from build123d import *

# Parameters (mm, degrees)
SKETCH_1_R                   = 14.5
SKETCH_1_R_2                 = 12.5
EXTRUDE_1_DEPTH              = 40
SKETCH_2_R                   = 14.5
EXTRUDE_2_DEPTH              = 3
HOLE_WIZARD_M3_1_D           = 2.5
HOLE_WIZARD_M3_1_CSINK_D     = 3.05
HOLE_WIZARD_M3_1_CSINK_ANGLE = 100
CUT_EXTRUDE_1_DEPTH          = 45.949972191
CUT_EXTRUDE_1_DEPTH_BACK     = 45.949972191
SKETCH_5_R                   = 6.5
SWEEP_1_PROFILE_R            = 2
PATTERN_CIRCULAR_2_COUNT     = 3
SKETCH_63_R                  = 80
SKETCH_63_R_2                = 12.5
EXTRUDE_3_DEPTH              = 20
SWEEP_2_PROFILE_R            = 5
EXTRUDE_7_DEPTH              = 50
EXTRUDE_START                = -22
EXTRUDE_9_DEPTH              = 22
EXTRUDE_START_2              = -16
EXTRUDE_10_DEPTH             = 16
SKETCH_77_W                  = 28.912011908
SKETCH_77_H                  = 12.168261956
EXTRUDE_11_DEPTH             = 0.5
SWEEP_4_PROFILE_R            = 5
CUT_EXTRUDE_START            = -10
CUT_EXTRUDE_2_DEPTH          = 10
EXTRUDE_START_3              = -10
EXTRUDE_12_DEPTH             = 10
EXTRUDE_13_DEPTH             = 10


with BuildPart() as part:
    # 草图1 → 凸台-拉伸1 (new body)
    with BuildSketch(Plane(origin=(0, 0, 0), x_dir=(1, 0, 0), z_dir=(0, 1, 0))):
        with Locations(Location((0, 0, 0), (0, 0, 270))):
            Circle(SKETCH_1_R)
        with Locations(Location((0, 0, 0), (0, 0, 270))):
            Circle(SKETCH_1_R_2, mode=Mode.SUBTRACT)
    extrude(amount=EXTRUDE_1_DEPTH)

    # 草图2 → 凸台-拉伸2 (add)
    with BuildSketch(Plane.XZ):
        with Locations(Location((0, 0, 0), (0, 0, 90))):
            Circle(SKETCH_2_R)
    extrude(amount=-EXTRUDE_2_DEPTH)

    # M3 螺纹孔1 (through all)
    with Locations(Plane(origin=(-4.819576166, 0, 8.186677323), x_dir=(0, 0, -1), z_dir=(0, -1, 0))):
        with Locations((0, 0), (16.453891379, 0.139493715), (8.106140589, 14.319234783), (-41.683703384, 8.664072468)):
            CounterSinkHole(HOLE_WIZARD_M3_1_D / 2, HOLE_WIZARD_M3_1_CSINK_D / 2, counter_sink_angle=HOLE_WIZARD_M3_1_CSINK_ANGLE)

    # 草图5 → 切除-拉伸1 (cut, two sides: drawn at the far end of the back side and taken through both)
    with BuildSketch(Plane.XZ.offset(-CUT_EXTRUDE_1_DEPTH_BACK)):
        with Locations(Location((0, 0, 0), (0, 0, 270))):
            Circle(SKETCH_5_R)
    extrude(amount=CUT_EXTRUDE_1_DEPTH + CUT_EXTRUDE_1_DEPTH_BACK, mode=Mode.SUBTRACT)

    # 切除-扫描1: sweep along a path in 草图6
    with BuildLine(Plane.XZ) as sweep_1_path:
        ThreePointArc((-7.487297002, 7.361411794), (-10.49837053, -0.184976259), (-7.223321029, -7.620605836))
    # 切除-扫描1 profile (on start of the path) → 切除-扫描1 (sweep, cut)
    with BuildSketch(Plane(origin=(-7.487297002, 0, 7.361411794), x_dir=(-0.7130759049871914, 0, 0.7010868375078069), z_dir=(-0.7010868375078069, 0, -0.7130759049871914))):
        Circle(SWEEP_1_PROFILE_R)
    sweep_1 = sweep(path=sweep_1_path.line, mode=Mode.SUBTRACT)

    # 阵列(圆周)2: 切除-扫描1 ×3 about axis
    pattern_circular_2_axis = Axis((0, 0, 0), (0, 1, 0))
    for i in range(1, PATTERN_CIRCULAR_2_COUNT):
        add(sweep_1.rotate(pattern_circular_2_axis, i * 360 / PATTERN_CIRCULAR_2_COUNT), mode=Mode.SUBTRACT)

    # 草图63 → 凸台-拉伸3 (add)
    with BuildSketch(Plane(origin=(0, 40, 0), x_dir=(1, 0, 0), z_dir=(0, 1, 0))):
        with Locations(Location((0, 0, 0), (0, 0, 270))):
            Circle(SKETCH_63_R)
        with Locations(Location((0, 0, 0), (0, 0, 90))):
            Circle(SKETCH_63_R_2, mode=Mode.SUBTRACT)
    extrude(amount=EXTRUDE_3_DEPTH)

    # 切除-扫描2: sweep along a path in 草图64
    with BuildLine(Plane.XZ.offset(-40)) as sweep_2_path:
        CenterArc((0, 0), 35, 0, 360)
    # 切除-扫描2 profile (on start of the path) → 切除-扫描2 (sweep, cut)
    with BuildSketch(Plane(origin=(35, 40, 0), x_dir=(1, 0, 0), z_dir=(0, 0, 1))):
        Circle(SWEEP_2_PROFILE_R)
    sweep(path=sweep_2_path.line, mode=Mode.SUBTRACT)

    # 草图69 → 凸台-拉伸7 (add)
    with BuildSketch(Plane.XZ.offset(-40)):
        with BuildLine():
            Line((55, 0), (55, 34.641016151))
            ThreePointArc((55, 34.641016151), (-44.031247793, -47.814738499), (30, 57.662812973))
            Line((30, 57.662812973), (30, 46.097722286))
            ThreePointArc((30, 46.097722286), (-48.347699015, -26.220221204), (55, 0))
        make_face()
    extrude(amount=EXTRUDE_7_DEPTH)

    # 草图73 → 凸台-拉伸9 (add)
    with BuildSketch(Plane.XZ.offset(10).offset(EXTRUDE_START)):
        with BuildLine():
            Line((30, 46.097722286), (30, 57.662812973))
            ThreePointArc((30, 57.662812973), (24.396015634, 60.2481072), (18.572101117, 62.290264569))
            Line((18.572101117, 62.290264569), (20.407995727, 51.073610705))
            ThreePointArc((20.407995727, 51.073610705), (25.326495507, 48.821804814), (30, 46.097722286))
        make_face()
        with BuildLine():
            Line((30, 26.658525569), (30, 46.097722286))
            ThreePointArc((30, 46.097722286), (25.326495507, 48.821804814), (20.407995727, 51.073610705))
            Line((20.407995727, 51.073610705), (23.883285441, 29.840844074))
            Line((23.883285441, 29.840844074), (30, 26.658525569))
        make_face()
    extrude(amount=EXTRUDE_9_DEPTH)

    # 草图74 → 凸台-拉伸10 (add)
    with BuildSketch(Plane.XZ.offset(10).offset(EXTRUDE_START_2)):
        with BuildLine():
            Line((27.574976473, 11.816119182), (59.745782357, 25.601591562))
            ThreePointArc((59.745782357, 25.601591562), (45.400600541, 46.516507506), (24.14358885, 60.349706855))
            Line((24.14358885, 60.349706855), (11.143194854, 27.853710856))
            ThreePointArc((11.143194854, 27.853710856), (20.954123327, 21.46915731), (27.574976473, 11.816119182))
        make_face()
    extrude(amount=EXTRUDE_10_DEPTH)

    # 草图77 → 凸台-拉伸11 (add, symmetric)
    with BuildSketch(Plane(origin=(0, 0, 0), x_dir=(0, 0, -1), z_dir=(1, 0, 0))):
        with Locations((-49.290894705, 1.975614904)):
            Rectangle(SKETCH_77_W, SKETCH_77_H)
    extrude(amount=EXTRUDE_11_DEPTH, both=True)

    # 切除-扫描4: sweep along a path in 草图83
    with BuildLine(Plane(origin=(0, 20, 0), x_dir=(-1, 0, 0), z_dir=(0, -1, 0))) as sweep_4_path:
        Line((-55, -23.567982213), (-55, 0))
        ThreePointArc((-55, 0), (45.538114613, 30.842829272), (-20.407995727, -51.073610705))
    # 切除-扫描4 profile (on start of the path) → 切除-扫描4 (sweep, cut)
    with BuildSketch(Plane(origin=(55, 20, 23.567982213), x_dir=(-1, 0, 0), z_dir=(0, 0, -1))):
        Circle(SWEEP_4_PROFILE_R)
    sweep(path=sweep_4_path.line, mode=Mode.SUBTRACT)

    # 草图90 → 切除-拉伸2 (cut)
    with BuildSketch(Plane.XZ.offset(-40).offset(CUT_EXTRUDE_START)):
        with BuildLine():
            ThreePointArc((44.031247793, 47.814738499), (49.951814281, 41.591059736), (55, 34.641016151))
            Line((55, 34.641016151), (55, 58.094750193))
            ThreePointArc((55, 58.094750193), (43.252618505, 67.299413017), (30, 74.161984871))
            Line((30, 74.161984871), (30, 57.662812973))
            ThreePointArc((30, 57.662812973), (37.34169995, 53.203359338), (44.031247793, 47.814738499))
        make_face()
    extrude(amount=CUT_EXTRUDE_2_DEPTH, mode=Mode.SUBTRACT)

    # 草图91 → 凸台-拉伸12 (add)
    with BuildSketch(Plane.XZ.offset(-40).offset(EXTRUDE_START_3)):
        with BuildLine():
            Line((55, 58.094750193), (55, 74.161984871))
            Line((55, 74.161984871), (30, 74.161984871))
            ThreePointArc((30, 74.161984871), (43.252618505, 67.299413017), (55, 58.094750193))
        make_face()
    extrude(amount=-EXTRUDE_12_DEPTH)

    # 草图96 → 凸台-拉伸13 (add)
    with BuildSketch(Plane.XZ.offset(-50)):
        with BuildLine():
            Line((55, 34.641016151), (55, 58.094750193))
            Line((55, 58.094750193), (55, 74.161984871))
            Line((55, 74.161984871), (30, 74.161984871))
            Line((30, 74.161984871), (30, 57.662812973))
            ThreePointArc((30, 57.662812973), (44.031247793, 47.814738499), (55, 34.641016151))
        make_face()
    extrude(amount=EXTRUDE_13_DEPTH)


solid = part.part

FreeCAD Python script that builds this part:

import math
import FreeCAD as App
import Part
import Sketcher

V = App.Vector
Q = App.Units.Quantity

doc = App.newDocument("Part")
params = doc.addObject("Spreadsheet::Sheet", "Params")
for row, (alias, value) in enumerate([
    ("sketch1_diameter", "29 mm"),
    ("sketch1_diameter2", "25 mm"),
    ("pad1_length", "40 mm"),
    ("sketch2_diameter", "29 mm"),
    ("pad2_length", "3 mm"),
    ("sketch3_diameter", "2.5 mm"),
    ("hole_diameter", "2.5 mm"),
    ("hole_csink_diameter", "3.05 mm"),
    ("sketch4_diameter", "13 mm"),
    ("sketch5_diameter", "4 mm"),
    ("sketch6_radius", "10.5 mm"),
    ("sketch7_diameter", "160 mm"),
    ("sketch7_diameter2", "25 mm"),
    ("pad3_length", "20 mm"),
    ("sketch8_diameter", "10 mm"),
    ("sketch9_diameter", "70 mm"),
    ("sketch10_radius", "55 mm"),
    ("sketch10_radius2", "65 mm"),
    ("pad4_length", "50 mm"),
    ("sketch11_radius", "65 mm"),
    ("pad5_length", "22 mm"),
    ("sketch12_radius", "65 mm"),
    ("sketch12_radius2", "30 mm"),
    ("pad6_length", "16 mm"),
    ("pad7_length", "1 mm"),
    ("sketch14_diameter", "10 mm"),
    ("sketch15_radius", "55 mm"),
    ("sketch16_radius", "65 mm"),
    ("sketch16_radius2", "80 mm"),
    ("pocket2_length", "10 mm"),
    ("sketch17_radius", "80 mm"),
    ("sketch17_width", "25 mm"),
    ("pad8_length", "10 mm"),
    ("sketch18_radius", "65 mm"),
    ("sketch18_width", "25 mm"),
    ("pad9_length", "10 mm"),
], start=1):
    params.set(f"A{row}", alias)
    params.set(f"B{row}", "=" + value)
    params.setAlias(f"B{row}", alias)

body = doc.addObject("PartDesign::Body", "Body")

# Sketch on XZ plane
sketch1 = doc.addObject("Sketcher::SketchObject", "Sketch")
body.addObject(sketch1)
sketch1.AttachmentSupport = (doc.XZ_Plane, [""])
sketch1.MapMode = "FlatFace"
sketch1.addGeometry([
    Part.Circle(V(0, 0, 0), V(0, 0, 1), 14.5),
    Part.Circle(V(0, 0, 0), V(0, 0, 1), 12.5),
], False)
sketch1.addConstraint([
    Sketcher.Constraint("Coincident", 0, 3, -1, 1),
    Sketcher.Constraint("Coincident", 1, 3, -1, 1),
    Sketcher.Constraint("Diameter", 0, Q("29 mm")),
    Sketcher.Constraint("Diameter", 1, Q("25 mm")),
])
sketch1.setExpression("Constraints[2]", "Params.sketch1_diameter")
sketch1.setExpression("Constraints[3]", "Params.sketch1_diameter2")
pad1 = doc.addObject("PartDesign::Pad", "Pad")
body.addObject(pad1)
pad1.Profile = sketch1
pad1.setExpression("Length", "Params.pad1_length")
pad1.Reversed = True

# Sketch on XZ plane
sketch2 = doc.addObject("Sketcher::SketchObject", "Sketch001")
body.addObject(sketch2)
sketch2.AttachmentSupport = (doc.XZ_Plane, [""])
sketch2.MapMode = "FlatFace"
sketch2.addGeometry(Part.Circle(V(0, 0, 0), V(0, 0, 1), 14.5), False)
sketch2.addConstraint([
    Sketcher.Constraint("Coincident", 0, 3, -1, 1),
    Sketcher.Constraint("Diameter", 0, Q("29 mm")),
])
sketch2.setExpression("Constraints[1]", "Params.sketch2_diameter")
pad2 = doc.addObject("PartDesign::Pad", "Pad001")
body.addObject(pad2)
pad2.Profile = sketch2
pad2.setExpression("Length", "Params.pad2_length")
pad2.Reversed = True

# Sketch on XZ plane
sketch3 = doc.addObject("Sketcher::SketchObject", "Sketch002")
body.addObject(sketch3)
sketch3.AttachmentSupport = (doc.XZ_Plane, [""])
sketch3.MapMode = "FlatFace"
sketch3.addGeometry([
    Part.Circle(V(-4.819576, 8.186677, 0), V(0, 0, 1), 1.25),
    Part.Circle(V(-4.680082, -8.267214, 0), V(0, 0, 1), 1.25),
    Part.Circle(V(9.499659, 0.080537, 0), V(0, 0, 1), 1.25),
    Part.Circle(V(3.844496, 49.870381, 0), V(0, 0, 1), 1.25),
], False)
sketch3.addConstraint([
    Sketcher.Constraint("Equal", 0, 1),
    Sketcher.Constraint("Equal", 1, 2),
    Sketcher.Constraint("Equal", 2, 3),
    Sketcher.Constraint("Diameter", 0, Q("2.5 mm")),
    Sketcher.Constraint("DistanceX", -1, 1, 2, 3, Q("9.499659 mm")),
    Sketcher.Constraint("DistanceY", -1, 1, 3, 3, Q("49.870381 mm")),
    Sketcher.Constraint("DistanceY", 1, 3, 0, 3, Q("16.453891 mm")),
    Sketcher.Constraint("DistanceX", 1, 3, 2, 3, Q("14.179741 mm")),
    Sketcher.Constraint("DistanceY", 1, 3, 2, 3, Q("8.347751 mm")),
    Sketcher.Constraint("DistanceX", 1, 3, 3, 3, Q("8.524579 mm")),
    Sketcher.Constraint("DistanceX", 0, 3, -1, 1, Q("4.819576 mm")),
    Sketcher.Constraint("DistanceY", -1, 1, 0, 3, Q("8.186677 mm")),
])
sketch3.setExpression("Constraints[3]", "Params.sketch3_diameter")
doc.recompute()
hole = doc.addObject("PartDesign::Hole", "Hole")
body.addObject(hole)
hole.Profile = sketch3
hole.ThreadType = "None"
hole.setExpression("Diameter", "Params.hole_diameter")
hole.DepthType = "ThroughAll"
hole.HoleCutType = "Countersink"
hole.setExpression("HoleCutDiameter", "Params.hole_csink_diameter")
hole.HoleCutCountersinkAngle = 100

# Sketch on XZ plane
sketch4 = doc.addObject("Sketcher::SketchObject", "Sketch003")
body.addObject(sketch4)
sketch4.AttachmentSupport = (doc.XZ_Plane, [""])
sketch4.MapMode = "FlatFace"
sketch4.addGeometry(Part.Circle(V(0, 0, 0), V(0, 0, 1), 6.5), False)
sketch4.addConstraint([
    Sketcher.Constraint("Coincident", 0, 3, -1, 1),
    Sketcher.Constraint("Diameter", 0, Q("13 mm")),
])
sketch4.setExpression("Constraints[1]", "Params.sketch4_diameter")
pocket1 = doc.addObject("PartDesign::Pocket", "Pocket")
body.addObject(pocket1)
pocket1.Profile = sketch4
pocket1.Type = "ThroughAll"
pocket1.Midplane = True

# Sketch on an angled plane
sketch5 = doc.addObject("Sketcher::SketchObject", "Sketch004")
body.addObject(sketch5)
sketch5.Placement = App.Placement(V(-7.487297, 0, 7.361412), App.Rotation(V(-0.713075905, 0, 0.701086838), V(0, 1.000000001, 0), V(-0.701086838, 0, -0.713075905), "ZXY"))
sketch5.addGeometry(Part.Circle(V(0, 0, 0), V(0, 0, 1), 2), False)
sketch5.addConstraint([
    Sketcher.Constraint("Coincident", 0, 3, -1, 1),
    Sketcher.Constraint("Diameter", 0, Q("4 mm")),
])
sketch5.setExpression("Constraints[1]", "Params.sketch5_diameter")

# Sketch on XZ plane
sketch6 = doc.addObject("Sketcher::SketchObject", "Sketch005")
body.addObject(sketch6)
sketch6.AttachmentSupport = (doc.XZ_Plane, [""])
sketch6.MapMode = "FlatFace"
sketch6.addGeometry(Part.ArcOfCircle(Part.Circle(V(0, 0, 0), V(0, 0, 1), 10.5), math.radians(135.485734), math.radians(226.533106)), False)
sketch6.addConstraint([
    Sketcher.Constraint("Coincident", 0, 3, -1, 1),
    Sketcher.Constraint("Radius", 0, Q("10.5 mm")),
    Sketcher.Constraint("DistanceY", -1, 1, 0, 1, Q("7.361412 mm")),
    Sketcher.Constraint("DistanceX", 0, 2, -1, 1, Q("7.223321 mm")),
])
sketch6.setExpression("Constraints[1]", "Params.sketch6_radius")
doc.recompute()

subtractivepipe = doc.addObject("PartDesign::SubtractivePipe", "SubtractivePipe")
body.addObject(subtractivepipe)
subtractivepipe.Profile = sketch5
subtractivepipe.Spine = (sketch6, ["Edge1"])
doc.recompute()

polarpattern = doc.addObject("PartDesign::PolarPattern", "PolarPattern")
body.addObject(polarpattern)
polarpattern.Originals = [subtractivepipe]
polarpattern.Axis = (doc.Y_Axis, [""])
polarpattern.Angle = 360
polarpattern.Occurrences = 3
body.Tip = polarpattern

# Sketch on XZ plane
sketch7 = doc.addObject("Sketcher::SketchObject", "Sketch006")
body.addObject(sketch7)
sketch7.AttachmentSupport = (doc.XZ_Plane, [""])
sketch7.MapMode = "FlatFace"
sketch7.AttachmentOffset = App.Placement(V(0, 0, -40), App.Rotation())
sketch7.addGeometry([
    Part.Circle(V(0, 0, 0), V(0, 0, 1), 80),
    Part.Circle(V(0, 0, 0), V(0, 0, 1), 12.5),
], False)
sketch7.addConstraint([
    Sketcher.Constraint("Coincident", 0, 3, -1, 1),
    Sketcher.Constraint("Coincident", 1, 3, -1, 1),
    Sketcher.Constraint("Diameter", 0, Q("160 mm")),
    Sketcher.Constraint("Diameter", 1, Q("25 mm")),
])
sketch7.setExpression("Constraints[2]", "Params.sketch7_diameter")
sketch7.setExpression("Constraints[3]", "Params.sketch7_diameter2")
pad3 = doc.addObject("PartDesign::Pad", "Pad002")
body.addObject(pad3)
pad3.Profile = sketch7
pad3.setExpression("Length", "Params.pad3_length")
pad3.Reversed = True

# Sketch on XY plane
sketch8 = doc.addObject("Sketcher::SketchObject", "Sketch007")
body.addObject(sketch8)
sketch8.AttachmentSupport = (doc.XY_Plane, [""])
sketch8.MapMode = "FlatFace"
sketch8.addGeometry(Part.Circle(V(35, 40, 0), V(0, 0, 1), 5), False)
sketch8.addConstraint([
    Sketcher.Constraint("Diameter", 0, Q("10 mm")),
    Sketcher.Constraint("DistanceX", -1, 1, 0, 3, Q("35 mm")),
    Sketcher.Constraint("DistanceY", -1, 1, 0, 3, Q("40 mm")),
])
sketch8.setExpression("Constraints[0]", "Params.sketch8_diameter")

# Sketch on XZ plane
sketch9 = doc.addObject("Sketcher::SketchObject", "Sketch008")
body.addObject(sketch9)
sketch9.AttachmentSupport = (doc.XZ_Plane, [""])
sketch9.MapMode = "FlatFace"
sketch9.AttachmentOffset = App.Placement(V(0, 0, -40), App.Rotation())
sketch9.addGeometry(Part.Circle(V(0, 0, 0), V(0, 0, 1), 35), False)
sketch9.addConstraint([
    Sketcher.Constraint("Coincident", 0, 3, -1, 1),
    Sketcher.Constraint("Diameter", 0, Q("70 mm")),
])
sketch9.setExpression("Constraints[1]", "Params.sketch9_diameter")
doc.recompute()

subtractivepipe2 = doc.addObject("PartDesign::SubtractivePipe", "SubtractivePipe001")
body.addObject(subtractivepipe2)
subtractivepipe2.Profile = sketch8
subtractivepipe2.Spine = (sketch9, ["Edge1"])

# Sketch on XZ plane
sketch10 = doc.addObject("Sketcher::SketchObject", "Sketch009")
body.addObject(sketch10)
sketch10.AttachmentSupport = (doc.XZ_Plane, [""])
sketch10.MapMode = "FlatFace"
sketch10.AttachmentOffset = App.Placement(V(0, 0, -40), App.Rotation())
sketch10.addGeometry([
    Part.LineSegment(V(55, 34.641016, 0), V(55, 0, 0)),
    Part.ArcOfCircle(Part.Circle(V(0, 0, 0), V(0, 0, 1), 55), math.radians(56.944269), math.radians(360)),
    Part.LineSegment(V(30, 46.097722, 0), V(30, 57.662813, 0)),
    Part.ArcOfCircle(Part.Circle(V(0, 0, 0), V(0, 0, 1), 65), math.radians(62.513574), math.radians(392.204228)),
], False)
sketch10.addConstraint([
    Sketcher.Constraint("Tangent", 0, 2, 1, 2),
    Sketcher.Constraint("Coincident", 1, 1, 2, 1),
    Sketcher.Constraint("Coincident", 2, 2, 3, 1),
    Sketcher.Constraint("Coincident", 3, 2, 0, 1),
    Sketcher.Constraint("Vertical", 0),
    Sketcher.Constraint("Vertical", 2),
    Sketcher.Constraint("Coincident", 1, 3, -1, 1),
    Sketcher.Constraint("Coincident", 3, 3, -1, 1),
    Sketcher.Constraint("Radius", 1, Q("55 mm")),
    Sketcher.Constraint("Radius", 3, Q("65 mm")),
    Sketcher.Constraint("DistanceX", -1, 1, 1, 1, Q("30 mm")),
])
sketch10.setExpression("Constraints[8]", "Params.sketch10_radius")
sketch10.setExpression("Constraints[9]", "Params.sketch10_radius2")
pad4 = doc.addObject("PartDesign::Pad", "Pad003")
body.addObject(pad4)
pad4.Profile = sketch10
pad4.setExpression("Length", "Params.pad4_length")

# Sketch on XZ plane
sketch11 = doc.addObject("Sketcher::SketchObject", "Sketch010")
body.addObject(sketch11)
sketch11.AttachmentSupport = (doc.XZ_Plane, [""])
sketch11.MapMode = "FlatFace"
sketch11.AttachmentOffset = App.Placement(V(0, 0, -12), App.Rotation())
sketch11.addGeometry([
    Part.ArcOfCircle(Part.Circle(V(0, 0, 0), V(0, 0, 1), 65), math.radians(62.513574), math.radians(73.397832)),  # 0
    Part.LineSegment(V(18.572101, 62.290265, 0), V(20.407996, 51.073611, 0)),  # 1
    Part.LineSegment(V(20.407996, 51.073611, 0), V(23.883285, 29.840844, 0)),  # 2
    Part.LineSegment(V(23.883285, 29.840844, 0), V(30, 26.658526, 0)),  # 3
    Part.LineSegment(V(30, 26.658526, 0), V(30, 57.662813, 0)),  # 4
], False)
sketch11.addConstraint([
    Sketcher.Constraint("Coincident", 0, 2, 1, 1),
    Sketcher.Constraint("Coincident", 1, 2, 2, 1),
    Sketcher.Constraint("Coincident", 2, 2, 3, 1),
    Sketcher.Constraint("Coincident", 3, 2, 4, 1),
    Sketcher.Constraint("Coincident", 4, 2, 0, 1),
    Sketcher.Constraint("Vertical", 4),
    Sketcher.Constraint("Coincident", 0, 3, -1, 1),
    Sketcher.Constraint("Parallel", 1, 2),
    Sketcher.Constraint("Radius", 0, Q("65 mm")),
    Sketcher.Constraint("DistanceX", -1, 1, 3, 2, Q("30 mm")),
    Sketcher.Constraint("DistanceX", -1, 1, 0, 2, Q("18.572101 mm")),
    Sketcher.Constraint("DistanceY", 4, 1, 4, 2, Q("31.004287 mm")),
    Sketcher.Constraint("DistanceY", -1, 1, 1, 2, Q("51.073611 mm")),
    Sketcher.Constraint("DistanceX", 1, 2, 2, 2, Q("3.47529 mm")),
    Sketcher.Constraint("DistanceY", 2, 2, 0, 2, Q("32.44942 mm")),
])
sketch11.setExpression("Constraints[8]", "Params.sketch11_radius")
pad5 = doc.addObject("PartDesign::Pad", "Pad004")
body.addObject(pad5)
pad5.Profile = sketch11
pad5.setExpression("Length", "Params.pad5_length")

# Sketch on XZ plane
sketch12 = doc.addObject("Sketcher::SketchObject", "Sketch011")
body.addObject(sketch12)
sketch12.AttachmentSupport = (doc.XZ_Plane, [""])
sketch12.MapMode = "FlatFace"
sketch12.AttachmentOffset = App.Placement(V(0, 0, -6), App.Rotation())
sketch12.addGeometry([
    Part.LineSegment(V(27.574976, 11.816119, 0), V(59.745782, 25.601592, 0)),
    Part.ArcOfCircle(Part.Circle(V(0, 0, 0), V(0, 0, 1), 65), math.radians(23.195557), math.radians(68.195557)),
    Part.LineSegment(V(24.143589, 60.349707, 0), V(11.143195, 27.853711, 0)),
    Part.ArcOfCircle(Part.Circle(V(0, 0, 0), V(0, 0, 1), 30), math.radians(23.195557), math.radians(68.195557)),
], False)
sketch12.addConstraint([
    Sketcher.Constraint("Coincident", 0, 2, 1, 1),
    Sketcher.Constraint("Coincident", 1, 2, 2, 1),
    Sketcher.Constraint("Coincident", 2, 2, 3, 2),
    Sketcher.Constraint("Coincident", 3, 1, 0, 1),
    Sketcher.Constraint("Coincident", 1, 3, -1, 1),
    Sketcher.Constraint("Coincident", 3, 3, -1, 1),
    Sketcher.Constraint("Radius", 1, Q("65 mm")),
    Sketcher.Constraint("Radius", 3, Q("30 mm")),
    Sketcher.Constraint("DistanceY", -1, 1, 0, 2, Q("25.601592 mm")),
    Sketcher.Constraint("DistanceX", -1, 1, 1, 2, Q("24.143589 mm")),
    Sketcher.Constraint("DistanceY", -1, 1, 2, 2, Q("27.853711 mm")),
    Sketcher.Constraint("DistanceY", -1, 1, 3, 1, Q("11.816119 mm")),
])
sketch12.setExpression("Constraints[6]", "Params.sketch12_radius")
sketch12.setExpression("Constraints[7]", "Params.sketch12_radius2")
pad6 = doc.addObject("PartDesign::Pad", "Pad005")
body.addObject(pad6)
pad6.Profile = sketch12
pad6.setExpression("Length", "Params.pad6_length")

# Sketch on YZ plane
sketch13 = doc.addObject("Sketcher::SketchObject", "Sketch012")
body.addObject(sketch13)
sketch13.AttachmentSupport = (doc.YZ_Plane, [""])
sketch13.MapMode = "FlatFace"
sketch13.addGeometry([
    Part.LineSegment(V(8.059746, 63.746901, 0), V(-4.108516, 63.746901, 0)),
    Part.LineSegment(V(-4.108516, 63.746901, 0), V(-4.108516, 34.834889, 0)),
    Part.LineSegment(V(-4.108516, 34.834889, 0), V(8.059746, 34.834889, 0)),
    Part.LineSegment(V(8.059746, 34.834889, 0), V(8.059746, 63.746901, 0)),
], False)
sketch13.addConstraint([
    Sketcher.Constraint("Coincident", 0, 2, 1, 1),
    Sketcher.Constraint("Coincident", 1, 2, 2, 1),
    Sketcher.Constraint("Coincident", 2, 2, 3, 1),
    Sketcher.Constraint("Coincident", 3, 2, 0, 1),
    Sketcher.Constraint("Horizontal", 0),
    Sketcher.Constraint("Vertical", 1),
    Sketcher.Constraint("Horizontal", 2),
    Sketcher.Constraint("Vertical", 3),
    Sketcher.Constraint("DistanceX", 0, 2, 0, 1, Q("12.168262 mm")),
    Sketcher.Constraint("DistanceY", 1, 2, 1, 1, Q("28.912012 mm")),
    Sketcher.Constraint("DistanceY", -1, 1, 0, 2, Q("63.746901 mm")),
    Sketcher.Constraint("DistanceX", 0, 2, -1, 1, Q("4.108516 mm")),
])
pad7 = doc.addObject("PartDesign::Pad", "Pad006")
body.addObject(pad7)
pad7.Profile = sketch13
pad7.setExpression("Length", "Params.pad7_length")
pad7.Midplane = True

# Sketch on XY plane
sketch14 = doc.addObject("Sketcher::SketchObject", "Sketch013")
body.addObject(sketch14)
sketch14.AttachmentSupport = (doc.XY_Plane, [""])
sketch14.MapMode = "FlatFace"
sketch14.AttachmentOffset = App.Placement(V(0, 0, 23.567982), App.Rotation())
sketch14.addGeometry(Part.Circle(V(55, 20, 0), V(0, 0, 1), 5), False)
sketch14.addConstraint([
    Sketcher.Constraint("Diameter", 0, Q("10 mm")),
    Sketcher.Constraint("DistanceX", -1, 1, 0, 3, Q("55 mm")),
    Sketcher.Constraint("DistanceY", -1, 1, 0, 3, Q("20 mm")),
])
sketch14.setExpression("Constraints[0]", "Params.sketch14_diameter")

# Sketch on XZ plane
sketch15 = doc.addObject("Sketcher::SketchObject", "Sketch014")
body.addObject(sketch15)
sketch15.AttachmentSupport = (doc.XZ_Plane, [""])
sketch15.MapMode = "FlatFace"
sketch15.AttachmentOffset = App.Placement(V(0, 0, -20), App.Rotation())
sketch15.addGeometry([
    Part.LineSegment(V(55, 23.567982, 0), V(55, 0, 0)),
    Part.ArcOfCircle(Part.Circle(V(0, 0, 0), V(0, 0, 1), 55), math.radians(68.219336), math.radians(360)),
], False)
sketch15.addConstraint([
    Sketcher.Constraint("Tangent", 0, 2, 1, 2),
    Sketcher.Constraint("Vertical", 0),
    Sketcher.Constraint("Coincident", 1, 3, -1, 1),
    Sketcher.Constraint("Radius", 1, Q("55 mm")),
    Sketcher.Constraint("DistanceY", 0, 2, 0, 1, Q("23.567982 mm")),
    Sketcher.Constraint("DistanceY", -1, 1, 1, 1, Q("51.073611 mm")),
])
sketch15.setExpression("Constraints[3]", "Params.sketch15_radius")
doc.recompute()

subtractivepipe3 = doc.addObject("PartDesign::SubtractivePipe", "SubtractivePipe002")
body.addObject(subtractivepipe3)
subtractivepipe3.Profile = sketch14
subtractivepipe3.Spine = (sketch15, ["Edge1", "Edge2"])

# Sketch on XZ plane
sketch16 = doc.addObject("Sketcher::SketchObject", "Sketch015")
body.addObject(sketch16)
sketch16.AttachmentSupport = (doc.XZ_Plane, [""])
sketch16.MapMode = "FlatFace"
sketch16.AttachmentOffset = App.Placement(V(0, 0, -50), App.Rotation())
sketch16.addGeometry([
    Part.ArcOfCircle(Part.Circle(V(0, 0, 0), V(0, 0, 1), 65), math.radians(32.204228), math.radians(47.358901)),  # 0
    Part.LineSegment(V(55, 34.641016, 0), V(55, 58.09475, 0)),  # 1
    Part.ArcOfCircle(Part.Circle(V(0, 0, 0), V(0, 0, 1), 80), math.radians(46.567463), math.radians(67.975687)),  # 2
    Part.LineSegment(V(30, 74.161985, 0), V(30, 57.662813, 0)),  # 3
    Part.ArcOfCircle(Part.Circle(V(0, 0, 0), V(0, 0, 1), 65), math.radians(47.358901), math.radians(62.513574)),  # 4
], False)
sketch16.addConstraint([
    Sketcher.Constraint("Coincident", 0, 1, 1, 1),
    Sketcher.Constraint("Coincident", 1, 2, 2, 1),
    Sketcher.Constraint("Coincident", 2, 2, 3, 1),
    Sketcher.Constraint("Coincident", 3, 2, 4, 2),
    Sketcher.Constraint("Tangent", 4, 1, 0, 2),
    Sketcher.Constraint("Vertical", 1),
    Sketcher.Constraint("Vertical", 3),
    Sketcher.Constraint("Coincident", 0, 3, -1, 1),
    Sketcher.Constraint("Coincident", 2, 3, -1, 1),
    Sketcher.Constraint("Equal", 0, 4),
    Sketcher.Constraint("Radius", 0, Q("65 mm")),
    Sketcher.Constraint("Radius", 2, Q("80 mm")),
    Sketcher.Constraint("DistanceX", -1, 1, 0, 1, Q("55 mm")),
    Sketcher.Constraint("DistanceX", -1, 1, 2, 2, Q("30 mm")),
    Sketcher.Constraint("DistanceY", -1, 1, 4, 1, Q("47.814738 mm")),
])
sketch16.setExpression("Constraints[10]", "Params.sketch16_radius")
sketch16.setExpression("Constraints[11]", "Params.sketch16_radius2")
pocket2 = doc.addObject("PartDesign::Pocket", "Pocket001")
body.addObject(pocket2)
pocket2.Profile = sketch16
pocket2.setExpression("Length", "Params.pocket2_length")
pocket2.Reversed = True

# Sketch on XZ plane
sketch17 = doc.addObject("Sketcher::SketchObject", "Sketch016")
body.addObject(sketch17)
sketch17.AttachmentSupport = (doc.XZ_Plane, [""])
sketch17.MapMode = "FlatFace"
sketch17.AttachmentOffset = App.Placement(V(0, 0, -50), App.Rotation())
sketch17.addGeometry([
    Part.LineSegment(V(55, 58.09475, 0), V(55, 74.161985, 0)),
    Part.LineSegment(V(55, 74.161985, 0), V(30, 74.161985, 0)),
    Part.ArcOfCircle(Part.Circle(V(0, 0, 0), V(0, 0, 1), 80), math.radians(46.567463), math.radians(67.975687)),
], False)
sketch17.addConstraint([
    Sketcher.Constraint("Coincident", 0, 2, 1, 1),
    Sketcher.Constraint("Coincident", 1, 2, 2, 2),
    Sketcher.Constraint("Coincident", 2, 1, 0, 1),
    Sketcher.Constraint("Vertical", 0),
    Sketcher.Constraint("Horizontal", 1),
    Sketcher.Constraint("Coincident", 2, 3, -1, 1),
    Sketcher.Constraint("Radius", 2, Q("80 mm")),
    Sketcher.Constraint("DistanceX", 1, 2, 1, 1, Q("25 mm")),
    Sketcher.Constraint("DistanceX", -1, 1, 0, 2, Q("55 mm")),
])
sketch17.setExpression("Constraints[6]", "Params.sketch17_radius")
sketch17.setExpression("Constraints[7]", "Params.sketch17_width")
pad8 = doc.addObject("PartDesign::Pad", "Pad007")
body.addObject(pad8)
pad8.Profile = sketch17
pad8.setExpression("Length", "Params.pad8_length")
pad8.Reversed = True

# Sketch on XZ plane
sketch18 = doc.addObject("Sketcher::SketchObject", "Sketch017")
body.addObject(sketch18)
sketch18.AttachmentSupport = (doc.XZ_Plane, [""])
sketch18.MapMode = "FlatFace"
sketch18.AttachmentOffset = App.Placement(V(0, 0, -50), App.Rotation())
sketch18.addGeometry([
    Part.LineSegment(V(55, 34.641016, 0), V(55, 74.161985, 0)),
    Part.LineSegment(V(55, 74.161985, 0), V(30, 74.161985, 0)),
    Part.LineSegment(V(30, 74.161985, 0), V(30, 57.662813, 0)),
    Part.ArcOfCircle(Part.Circle(V(0, 0, 0), V(0, 0, 1), 65), math.radians(32.204228), math.radians(62.513574)),
], False)
sketch18.addConstraint([
    Sketcher.Constraint("Coincident", 0, 2, 1, 1),
    Sketcher.Constraint("Coincident", 1, 2, 2, 1),
    Sketcher.Constraint("Coincident", 2, 2, 3, 2),
    Sketcher.Constraint("Coincident", 3, 1, 0, 1),
    Sketcher.Constraint("Vertical", 0),
    Sketcher.Constraint("Horizontal", 1),
    Sketcher.Constraint("Vertical", 2),
    Sketcher.Constraint("Coincident", 3, 3, -1, 1),
    Sketcher.Constraint("Radius", 3, Q("65 mm")),
    Sketcher.Constraint("DistanceX", 1, 2, 1, 1, Q("25 mm")),
    Sketcher.Constraint("DistanceX", -1, 1, 0, 2, Q("55 mm")),
    Sketcher.Constraint("DistanceY", 0, 1, 0, 2, Q("39.520969 mm")),
])
sketch18.setExpression("Constraints[8]", "Params.sketch18_radius")
sketch18.setExpression("Constraints[9]", "Params.sketch18_width")
pad9 = doc.addObject("PartDesign::Pad", "Pad008")
body.addObject(pad9)
pad9.Profile = sketch18
pad9.setExpression("Length", "Params.pad9_length")

doc.recompute()
